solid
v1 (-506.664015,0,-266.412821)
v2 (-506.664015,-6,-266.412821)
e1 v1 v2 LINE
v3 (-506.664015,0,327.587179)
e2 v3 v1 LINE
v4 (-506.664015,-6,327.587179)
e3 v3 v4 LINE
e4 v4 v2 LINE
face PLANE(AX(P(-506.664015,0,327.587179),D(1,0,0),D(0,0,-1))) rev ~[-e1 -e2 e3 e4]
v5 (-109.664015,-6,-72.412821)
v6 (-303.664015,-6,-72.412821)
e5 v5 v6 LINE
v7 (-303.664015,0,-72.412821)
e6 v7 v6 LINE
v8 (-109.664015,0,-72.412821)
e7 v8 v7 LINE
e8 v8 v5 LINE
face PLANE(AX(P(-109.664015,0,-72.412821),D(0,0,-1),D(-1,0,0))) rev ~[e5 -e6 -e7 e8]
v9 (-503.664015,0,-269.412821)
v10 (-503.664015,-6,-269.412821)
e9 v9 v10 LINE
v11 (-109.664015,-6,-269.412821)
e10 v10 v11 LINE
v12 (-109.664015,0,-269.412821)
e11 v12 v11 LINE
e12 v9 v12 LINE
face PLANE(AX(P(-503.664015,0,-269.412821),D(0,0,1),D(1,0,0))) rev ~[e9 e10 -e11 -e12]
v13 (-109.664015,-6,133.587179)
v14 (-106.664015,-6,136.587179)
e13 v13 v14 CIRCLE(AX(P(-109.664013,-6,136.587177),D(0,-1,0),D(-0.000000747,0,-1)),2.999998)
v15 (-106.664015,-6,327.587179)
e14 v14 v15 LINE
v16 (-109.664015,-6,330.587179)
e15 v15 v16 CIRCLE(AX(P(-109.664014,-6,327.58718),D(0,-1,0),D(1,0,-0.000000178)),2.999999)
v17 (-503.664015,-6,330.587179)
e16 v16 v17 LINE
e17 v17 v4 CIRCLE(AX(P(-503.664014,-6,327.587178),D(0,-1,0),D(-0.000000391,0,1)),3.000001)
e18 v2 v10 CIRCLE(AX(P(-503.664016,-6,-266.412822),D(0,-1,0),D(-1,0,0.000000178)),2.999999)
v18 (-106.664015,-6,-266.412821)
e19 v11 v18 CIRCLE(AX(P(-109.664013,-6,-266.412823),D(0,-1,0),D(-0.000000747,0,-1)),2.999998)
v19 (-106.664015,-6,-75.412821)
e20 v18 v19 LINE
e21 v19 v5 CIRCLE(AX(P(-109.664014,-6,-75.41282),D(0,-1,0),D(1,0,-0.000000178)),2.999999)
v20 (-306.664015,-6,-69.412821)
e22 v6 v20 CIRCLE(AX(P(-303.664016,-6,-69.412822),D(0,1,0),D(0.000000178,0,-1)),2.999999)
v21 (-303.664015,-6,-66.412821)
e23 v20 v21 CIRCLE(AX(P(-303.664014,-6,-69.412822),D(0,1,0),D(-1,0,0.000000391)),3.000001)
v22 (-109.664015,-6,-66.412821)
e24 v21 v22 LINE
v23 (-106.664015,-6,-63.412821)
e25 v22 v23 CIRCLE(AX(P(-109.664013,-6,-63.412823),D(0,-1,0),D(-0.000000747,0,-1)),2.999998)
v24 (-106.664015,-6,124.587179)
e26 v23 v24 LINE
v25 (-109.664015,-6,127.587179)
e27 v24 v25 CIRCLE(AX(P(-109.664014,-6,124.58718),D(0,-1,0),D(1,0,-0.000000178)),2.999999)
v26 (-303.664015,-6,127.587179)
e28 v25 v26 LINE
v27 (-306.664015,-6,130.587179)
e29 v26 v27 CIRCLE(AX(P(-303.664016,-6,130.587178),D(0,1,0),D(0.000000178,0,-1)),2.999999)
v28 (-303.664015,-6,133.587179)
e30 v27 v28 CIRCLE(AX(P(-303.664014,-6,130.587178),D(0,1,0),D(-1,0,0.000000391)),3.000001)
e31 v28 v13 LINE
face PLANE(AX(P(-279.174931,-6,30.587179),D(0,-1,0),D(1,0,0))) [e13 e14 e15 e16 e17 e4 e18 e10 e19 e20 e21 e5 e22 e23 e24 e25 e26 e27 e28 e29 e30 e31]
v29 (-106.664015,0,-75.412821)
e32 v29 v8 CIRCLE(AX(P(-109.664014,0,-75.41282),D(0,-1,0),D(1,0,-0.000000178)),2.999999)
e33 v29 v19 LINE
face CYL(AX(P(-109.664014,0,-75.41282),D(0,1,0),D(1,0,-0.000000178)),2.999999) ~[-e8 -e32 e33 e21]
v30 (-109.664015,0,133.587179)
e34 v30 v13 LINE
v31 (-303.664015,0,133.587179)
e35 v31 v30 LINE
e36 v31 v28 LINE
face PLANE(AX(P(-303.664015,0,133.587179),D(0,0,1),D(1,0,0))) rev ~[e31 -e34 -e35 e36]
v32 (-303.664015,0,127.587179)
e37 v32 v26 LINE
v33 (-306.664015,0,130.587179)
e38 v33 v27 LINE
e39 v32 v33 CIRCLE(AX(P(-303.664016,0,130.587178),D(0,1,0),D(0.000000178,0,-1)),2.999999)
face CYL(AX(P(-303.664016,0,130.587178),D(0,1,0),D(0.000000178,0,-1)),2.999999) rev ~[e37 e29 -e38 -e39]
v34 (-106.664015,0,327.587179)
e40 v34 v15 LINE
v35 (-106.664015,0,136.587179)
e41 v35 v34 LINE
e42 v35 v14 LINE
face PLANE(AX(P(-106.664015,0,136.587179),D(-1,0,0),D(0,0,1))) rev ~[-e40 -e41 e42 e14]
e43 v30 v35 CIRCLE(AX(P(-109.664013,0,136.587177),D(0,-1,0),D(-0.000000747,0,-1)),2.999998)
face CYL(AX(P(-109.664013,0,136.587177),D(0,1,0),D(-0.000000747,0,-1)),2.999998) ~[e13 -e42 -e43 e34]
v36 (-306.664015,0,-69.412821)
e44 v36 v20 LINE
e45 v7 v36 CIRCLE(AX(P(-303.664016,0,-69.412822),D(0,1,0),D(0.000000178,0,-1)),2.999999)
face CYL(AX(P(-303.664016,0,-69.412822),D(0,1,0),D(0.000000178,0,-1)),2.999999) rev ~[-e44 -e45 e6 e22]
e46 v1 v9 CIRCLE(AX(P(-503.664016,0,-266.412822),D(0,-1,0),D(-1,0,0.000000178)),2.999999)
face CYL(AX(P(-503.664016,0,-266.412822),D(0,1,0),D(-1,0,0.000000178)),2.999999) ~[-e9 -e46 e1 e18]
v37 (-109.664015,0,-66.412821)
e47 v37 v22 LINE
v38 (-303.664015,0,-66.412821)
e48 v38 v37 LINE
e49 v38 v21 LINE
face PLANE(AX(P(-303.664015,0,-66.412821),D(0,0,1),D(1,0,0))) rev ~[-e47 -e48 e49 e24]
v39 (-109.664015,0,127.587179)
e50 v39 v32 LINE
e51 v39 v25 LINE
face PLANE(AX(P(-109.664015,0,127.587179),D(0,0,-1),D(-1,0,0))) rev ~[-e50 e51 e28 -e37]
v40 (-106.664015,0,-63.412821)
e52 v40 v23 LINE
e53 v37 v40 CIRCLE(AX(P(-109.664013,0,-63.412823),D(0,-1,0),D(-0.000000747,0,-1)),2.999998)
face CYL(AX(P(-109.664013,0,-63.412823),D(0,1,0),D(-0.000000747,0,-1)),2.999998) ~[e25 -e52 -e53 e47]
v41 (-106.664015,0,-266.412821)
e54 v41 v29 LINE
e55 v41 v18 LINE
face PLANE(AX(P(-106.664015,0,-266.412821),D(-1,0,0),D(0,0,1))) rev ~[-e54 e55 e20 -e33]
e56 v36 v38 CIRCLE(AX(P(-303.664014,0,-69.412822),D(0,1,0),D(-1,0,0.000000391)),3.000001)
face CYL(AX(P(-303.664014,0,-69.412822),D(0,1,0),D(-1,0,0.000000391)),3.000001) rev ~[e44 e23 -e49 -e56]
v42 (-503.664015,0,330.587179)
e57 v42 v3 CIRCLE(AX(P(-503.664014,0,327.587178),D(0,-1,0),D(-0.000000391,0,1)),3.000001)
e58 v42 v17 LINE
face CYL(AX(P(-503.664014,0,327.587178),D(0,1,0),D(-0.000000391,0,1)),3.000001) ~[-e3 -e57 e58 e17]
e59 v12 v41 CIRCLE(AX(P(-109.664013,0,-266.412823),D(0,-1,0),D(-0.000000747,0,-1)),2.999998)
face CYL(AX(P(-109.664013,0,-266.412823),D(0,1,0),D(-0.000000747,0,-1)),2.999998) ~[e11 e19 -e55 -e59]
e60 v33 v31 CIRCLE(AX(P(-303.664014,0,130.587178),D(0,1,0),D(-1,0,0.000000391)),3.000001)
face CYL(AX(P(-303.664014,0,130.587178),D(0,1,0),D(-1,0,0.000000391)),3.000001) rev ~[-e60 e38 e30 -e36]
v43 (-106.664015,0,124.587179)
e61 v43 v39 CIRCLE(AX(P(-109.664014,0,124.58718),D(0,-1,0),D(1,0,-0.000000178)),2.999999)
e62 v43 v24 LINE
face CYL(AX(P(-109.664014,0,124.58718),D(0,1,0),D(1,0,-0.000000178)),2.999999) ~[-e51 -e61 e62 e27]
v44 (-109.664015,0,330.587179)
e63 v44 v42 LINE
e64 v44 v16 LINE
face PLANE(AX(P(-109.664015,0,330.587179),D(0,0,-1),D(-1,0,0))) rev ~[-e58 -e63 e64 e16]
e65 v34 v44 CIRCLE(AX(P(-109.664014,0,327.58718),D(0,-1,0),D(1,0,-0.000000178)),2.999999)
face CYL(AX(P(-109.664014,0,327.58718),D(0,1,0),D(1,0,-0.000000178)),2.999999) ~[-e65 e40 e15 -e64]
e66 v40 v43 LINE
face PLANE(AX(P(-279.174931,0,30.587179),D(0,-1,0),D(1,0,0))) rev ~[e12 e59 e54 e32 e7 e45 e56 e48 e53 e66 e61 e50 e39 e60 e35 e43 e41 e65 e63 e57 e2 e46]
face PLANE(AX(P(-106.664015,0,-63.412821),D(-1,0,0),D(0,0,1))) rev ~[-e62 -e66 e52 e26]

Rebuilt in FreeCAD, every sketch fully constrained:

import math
import FreeCAD as App
import Part
import Sketcher
from FreeCAD import Vector
Q = App.Units.Quantity

doc = App.newDocument("Part")
body = doc.addObject("PartDesign::Body", "Body")

# Sketch on XZ plane
sketch1 = doc.addObject("Sketcher::SketchObject", "Sketch")
body.addObject(sketch1)
sketch1.AttachmentSupport = (doc.XZ_Plane, [""])
sketch1.MapMode = "FlatFace"
sketch1.addGeometry(Part.LineSegment(Vector(-109.7, 330.6, 0), Vector(-503.7, 330.6, 0)), False)
sketch1.addGeometry(Part.ArcOfCircle(Part.Circle(Vector(-503.7, 327.6, 0), Vector(0, 0, 1), 3), math.radians(90), math.radians(180)), False)
sketch1.addGeometry(Part.LineSegment(Vector(-506.7, 327.6, 0), Vector(-506.7, -266.4, 0)), False)
sketch1.addGeometry(Part.ArcOfCircle(Part.Circle(Vector(-503.7, -266.4, 0), Vector(0, 0, 1), 3), math.radians(180), math.radians(270)), False)
sketch1.addGeometry(Part.LineSegment(Vector(-503.7, -269.4, 0), Vector(-109.7, -269.4, 0)), False)
sketch1.addGeometry(Part.ArcOfCircle(Part.Circle(Vector(-109.7, -266.4, 0), Vector(0, 0, 1), 3), math.radians(-90), math.radians(0)), False)
sketch1.addGeometry(Part.LineSegment(Vector(-106.7, -266.4, 0), Vector(-106.7, -75.4, 0)), False)
sketch1.addGeometry(Part.ArcOfCircle(Part.Circle(Vector(-109.7, -75.4, 0), Vector(0, 0, 1), 3), math.radians(0), math.radians(90)), False)
sketch1.addGeometry(Part.LineSegment(Vector(-109.7, -72.4, 0), Vector(-303.7, -72.4, 0)), False)
sketch1.addGeometry(Part.ArcOfCircle(Part.Circle(Vector(-303.7, -69.4, 0), Vector(0, 0, 1), 3), math.radians(180), math.radians(270)), False)
sketch1.addGeometry(Part.ArcOfCircle(Part.Circle(Vector(-303.7, -69.4, 0), Vector(0, 0, 1), 3), math.radians(90), math.radians(180)), False)
sketch1.addGeometry(Part.LineSegment(Vector(-303.7, -66.4, 0), Vector(-109.7, -66.4, 0)), False)
sketch1.addGeometry(Part.ArcOfCircle(Part.Circle(Vector(-109.7, -63.4, 0), Vector(0, 0, 1), 3), math.radians(-90), math.radians(0)), False)
sketch1.addGeometry(Part.LineSegment(Vector(-106.7, -63.4, 0), Vector(-106.7, 124.6, 0)), False)
sketch1.addGeometry(Part.ArcOfCircle(Part.Circle(Vector(-109.7, 124.6, 0), Vector(0, 0, 1), 3), math.radians(0), math.radians(90)), False)
sketch1.addGeometry(Part.LineSegment(Vector(-109.7, 127.6, 0), Vector(-303.7, 127.6, 0)), False)
sketch1.addGeometry(Part.ArcOfCircle(Part.Circle(Vector(-303.7, 130.6, 0), Vector(0, 0, 1), 3), math.radians(180), math.radians(270)), False)
sketch1.addGeometry(Part.ArcOfCircle(Part.Circle(Vector(-303.7, 130.6, 0), Vector(0, 0, 1), 3), math.radians(90), math.radians(180)), False)
sketch1.addGeometry(Part.LineSegment(Vector(-303.7, 133.6, 0), Vector(-109.7, 133.6, 0)), False)
sketch1.addGeometry(Part.ArcOfCircle(Part.Circle(Vector(-109.7, 136.6, 0), Vector(0, 0, 1), 3), math.radians(-90), math.radians(0)), False)
sketch1.addGeometry(Part.LineSegment(Vector(-106.7, 136.6, 0), Vector(-106.7, 327.6, 0)), False)
sketch1.addGeometry(Part.ArcOfCircle(Part.Circle(Vector(-109.7, 327.6, 0), Vector(0, 0, 1), 3), math.radians(0), math.radians(90)), False)
sketch1.addConstraint(Sketcher.Constraint("Tangent", 0, 2, 1, 1))
sketch1.addConstraint(Sketcher.Constraint("Tangent", 1, 2, 2, 1))
sketch1.addConstraint(Sketcher.Constraint("Tangent", 2, 2, 3, 1))
sketch1.addConstraint(Sketcher.Constraint("Tangent", 3, 2, 4, 1))
sketch1.addConstraint(Sketcher.Constraint("Tangent", 4, 2, 5, 1))
sketch1.addConstraint(Sketcher.Constraint("Tangent", 5, 2, 6, 1))
sketch1.addConstraint(Sketcher.Constraint("Tangent", 6, 2, 7, 1))
sketch1.addConstraint(Sketcher.Constraint("Tangent", 7, 2, 8, 1))
sketch1.addConstraint(Sketcher.Constraint("Tangent", 8, 2, 9, 2))
sketch1.addConstraint(Sketcher.Constraint("Tangent", 9, 1, 10, 2))
sketch1.addConstraint(Sketcher.Constraint("Tangent", 10, 1, 11, 1))
sketch1.addConstraint(Sketcher.Constraint("Tangent", 11, 2, 12, 1))
sketch1.addConstraint(Sketcher.Constraint("Tangent", 12, 2, 13, 1))
sketch1.addConstraint(Sketcher.Constraint("Tangent", 13, 2, 14, 1))
sketch1.addConstraint(Sketcher.Constraint("Tangent", 14, 2, 15, 1))
sketch1.addConstraint(Sketcher.Constraint("Tangent", 15, 2, 16, 2))
sketch1.addConstraint(Sketcher.Constraint("Tangent", 16, 1, 17, 2))
sketch1.addConstraint(Sketcher.Constraint("Tangent", 17, 1, 18, 1))
sketch1.addConstraint(Sketcher.Constraint("Tangent", 18, 2, 19, 1))
sketch1.addConstraint(Sketcher.Constraint("Tangent", 19, 2, 20, 1))
sketch1.addConstraint(Sketcher.Constraint("Tangent", 20, 2, 21, 1))
sketch1.addConstraint(Sketcher.Constraint("Tangent", 21, 2, 0, 1))
sketch1.addConstraint(Sketcher.Constraint("Horizontal", 0))
sketch1.addConstraint(Sketcher.Constraint("Vertical", 2))
sketch1.addConstraint(Sketcher.Constraint("Horizontal", 4))
sketch1.addConstraint(Sketcher.Constraint("Vertical", 6))
sketch1.addConstraint(Sketcher.Constraint("Horizontal", 8))
sketch1.addConstraint(Sketcher.Constraint("Horizontal", 11))
sketch1.addConstraint(Sketcher.Constraint("Vertical", 13))
sketch1.addConstraint(Sketcher.Constraint("Horizontal", 15))
sketch1.addConstraint(Sketcher.Constraint("Horizontal", 18))
sketch1.addConstraint(Sketcher.Constraint("Vertical", 20))
sketch1.addConstraint(Sketcher.Constraint("Equal", 1, 3))
sketch1.addConstraint(Sketcher.Constraint("Equal", 3, 5))
sketch1.addConstraint(Sketcher.Constraint("Equal", 5, 7))
sketch1.addConstraint(Sketcher.Constraint("Equal", 7, 9))
sketch1.addConstraint(Sketcher.Constraint("Equal", 9, 10))
sketch1.addConstraint(Sketcher.Constraint("Equal", 9, 12))
sketch1.addConstraint(Sketcher.Constraint("Equal", 12, 14))
sketch1.addConstraint(Sketcher.Constraint("Equal", 14, 16))
sketch1.addConstraint(Sketcher.Constraint("Equal", 16, 17))
sketch1.addConstraint(Sketcher.Constraint("Equal", 16, 19))
sketch1.addConstraint(Sketcher.Constraint("Equal", 19, 21))
sketch1.addConstraint(Sketcher.Constraint("Horizontal", 10, 3, 9, 1))
sketch1.addConstraint(Sketcher.Constraint("Horizontal", 17, 3, 16, 1))
sketch1.addConstraint(Sketcher.Constraint("Vertical", 7, 3, 12, 3))
sketch1.addConstraint(Sketcher.Constraint("Vertical", 10, 3, 16, 3))
sketch1.addConstraint(Sketcher.Constraint("Vertical", 14, 3, 19, 3))
sketch1.addConstraint(Sketcher.Constraint("Equal", 6, 20))
sketch1.addConstraint(Sketcher.Constraint("Radius", 1, Q("3.000001 mm")))
sketch1.addConstraint(Sketcher.Constraint("DistanceX", 0, 2, 0, 1, Q("394 mm")))
sketch1.addConstraint(Sketcher.Constraint("DistanceX", 8, 2, 8, 1, Q("194 mm")))
sketch1.addConstraint(Sketcher.Constraint("DistanceY", 2, 2, 2, 1, Q("594 mm")))
sketch1.addConstraint(Sketcher.Constraint("DistanceY", 6, 1, 6, 2, Q("191 mm")))
sketch1.addConstraint(Sketcher.Constraint("DistanceY", 3, 3, -1, 1, Q("266.412822 mm")))
sketch1.addConstraint(Sketcher.Constraint("DistanceX", 1, 3, -1, 1, Q("503.664014 mm")))
pad1 = doc.addObject("PartDesign::Pad", "Pad")
body.addObject(pad1)
pad1.Profile = sketch1
pad1.Length = 6

doc.recompute()
